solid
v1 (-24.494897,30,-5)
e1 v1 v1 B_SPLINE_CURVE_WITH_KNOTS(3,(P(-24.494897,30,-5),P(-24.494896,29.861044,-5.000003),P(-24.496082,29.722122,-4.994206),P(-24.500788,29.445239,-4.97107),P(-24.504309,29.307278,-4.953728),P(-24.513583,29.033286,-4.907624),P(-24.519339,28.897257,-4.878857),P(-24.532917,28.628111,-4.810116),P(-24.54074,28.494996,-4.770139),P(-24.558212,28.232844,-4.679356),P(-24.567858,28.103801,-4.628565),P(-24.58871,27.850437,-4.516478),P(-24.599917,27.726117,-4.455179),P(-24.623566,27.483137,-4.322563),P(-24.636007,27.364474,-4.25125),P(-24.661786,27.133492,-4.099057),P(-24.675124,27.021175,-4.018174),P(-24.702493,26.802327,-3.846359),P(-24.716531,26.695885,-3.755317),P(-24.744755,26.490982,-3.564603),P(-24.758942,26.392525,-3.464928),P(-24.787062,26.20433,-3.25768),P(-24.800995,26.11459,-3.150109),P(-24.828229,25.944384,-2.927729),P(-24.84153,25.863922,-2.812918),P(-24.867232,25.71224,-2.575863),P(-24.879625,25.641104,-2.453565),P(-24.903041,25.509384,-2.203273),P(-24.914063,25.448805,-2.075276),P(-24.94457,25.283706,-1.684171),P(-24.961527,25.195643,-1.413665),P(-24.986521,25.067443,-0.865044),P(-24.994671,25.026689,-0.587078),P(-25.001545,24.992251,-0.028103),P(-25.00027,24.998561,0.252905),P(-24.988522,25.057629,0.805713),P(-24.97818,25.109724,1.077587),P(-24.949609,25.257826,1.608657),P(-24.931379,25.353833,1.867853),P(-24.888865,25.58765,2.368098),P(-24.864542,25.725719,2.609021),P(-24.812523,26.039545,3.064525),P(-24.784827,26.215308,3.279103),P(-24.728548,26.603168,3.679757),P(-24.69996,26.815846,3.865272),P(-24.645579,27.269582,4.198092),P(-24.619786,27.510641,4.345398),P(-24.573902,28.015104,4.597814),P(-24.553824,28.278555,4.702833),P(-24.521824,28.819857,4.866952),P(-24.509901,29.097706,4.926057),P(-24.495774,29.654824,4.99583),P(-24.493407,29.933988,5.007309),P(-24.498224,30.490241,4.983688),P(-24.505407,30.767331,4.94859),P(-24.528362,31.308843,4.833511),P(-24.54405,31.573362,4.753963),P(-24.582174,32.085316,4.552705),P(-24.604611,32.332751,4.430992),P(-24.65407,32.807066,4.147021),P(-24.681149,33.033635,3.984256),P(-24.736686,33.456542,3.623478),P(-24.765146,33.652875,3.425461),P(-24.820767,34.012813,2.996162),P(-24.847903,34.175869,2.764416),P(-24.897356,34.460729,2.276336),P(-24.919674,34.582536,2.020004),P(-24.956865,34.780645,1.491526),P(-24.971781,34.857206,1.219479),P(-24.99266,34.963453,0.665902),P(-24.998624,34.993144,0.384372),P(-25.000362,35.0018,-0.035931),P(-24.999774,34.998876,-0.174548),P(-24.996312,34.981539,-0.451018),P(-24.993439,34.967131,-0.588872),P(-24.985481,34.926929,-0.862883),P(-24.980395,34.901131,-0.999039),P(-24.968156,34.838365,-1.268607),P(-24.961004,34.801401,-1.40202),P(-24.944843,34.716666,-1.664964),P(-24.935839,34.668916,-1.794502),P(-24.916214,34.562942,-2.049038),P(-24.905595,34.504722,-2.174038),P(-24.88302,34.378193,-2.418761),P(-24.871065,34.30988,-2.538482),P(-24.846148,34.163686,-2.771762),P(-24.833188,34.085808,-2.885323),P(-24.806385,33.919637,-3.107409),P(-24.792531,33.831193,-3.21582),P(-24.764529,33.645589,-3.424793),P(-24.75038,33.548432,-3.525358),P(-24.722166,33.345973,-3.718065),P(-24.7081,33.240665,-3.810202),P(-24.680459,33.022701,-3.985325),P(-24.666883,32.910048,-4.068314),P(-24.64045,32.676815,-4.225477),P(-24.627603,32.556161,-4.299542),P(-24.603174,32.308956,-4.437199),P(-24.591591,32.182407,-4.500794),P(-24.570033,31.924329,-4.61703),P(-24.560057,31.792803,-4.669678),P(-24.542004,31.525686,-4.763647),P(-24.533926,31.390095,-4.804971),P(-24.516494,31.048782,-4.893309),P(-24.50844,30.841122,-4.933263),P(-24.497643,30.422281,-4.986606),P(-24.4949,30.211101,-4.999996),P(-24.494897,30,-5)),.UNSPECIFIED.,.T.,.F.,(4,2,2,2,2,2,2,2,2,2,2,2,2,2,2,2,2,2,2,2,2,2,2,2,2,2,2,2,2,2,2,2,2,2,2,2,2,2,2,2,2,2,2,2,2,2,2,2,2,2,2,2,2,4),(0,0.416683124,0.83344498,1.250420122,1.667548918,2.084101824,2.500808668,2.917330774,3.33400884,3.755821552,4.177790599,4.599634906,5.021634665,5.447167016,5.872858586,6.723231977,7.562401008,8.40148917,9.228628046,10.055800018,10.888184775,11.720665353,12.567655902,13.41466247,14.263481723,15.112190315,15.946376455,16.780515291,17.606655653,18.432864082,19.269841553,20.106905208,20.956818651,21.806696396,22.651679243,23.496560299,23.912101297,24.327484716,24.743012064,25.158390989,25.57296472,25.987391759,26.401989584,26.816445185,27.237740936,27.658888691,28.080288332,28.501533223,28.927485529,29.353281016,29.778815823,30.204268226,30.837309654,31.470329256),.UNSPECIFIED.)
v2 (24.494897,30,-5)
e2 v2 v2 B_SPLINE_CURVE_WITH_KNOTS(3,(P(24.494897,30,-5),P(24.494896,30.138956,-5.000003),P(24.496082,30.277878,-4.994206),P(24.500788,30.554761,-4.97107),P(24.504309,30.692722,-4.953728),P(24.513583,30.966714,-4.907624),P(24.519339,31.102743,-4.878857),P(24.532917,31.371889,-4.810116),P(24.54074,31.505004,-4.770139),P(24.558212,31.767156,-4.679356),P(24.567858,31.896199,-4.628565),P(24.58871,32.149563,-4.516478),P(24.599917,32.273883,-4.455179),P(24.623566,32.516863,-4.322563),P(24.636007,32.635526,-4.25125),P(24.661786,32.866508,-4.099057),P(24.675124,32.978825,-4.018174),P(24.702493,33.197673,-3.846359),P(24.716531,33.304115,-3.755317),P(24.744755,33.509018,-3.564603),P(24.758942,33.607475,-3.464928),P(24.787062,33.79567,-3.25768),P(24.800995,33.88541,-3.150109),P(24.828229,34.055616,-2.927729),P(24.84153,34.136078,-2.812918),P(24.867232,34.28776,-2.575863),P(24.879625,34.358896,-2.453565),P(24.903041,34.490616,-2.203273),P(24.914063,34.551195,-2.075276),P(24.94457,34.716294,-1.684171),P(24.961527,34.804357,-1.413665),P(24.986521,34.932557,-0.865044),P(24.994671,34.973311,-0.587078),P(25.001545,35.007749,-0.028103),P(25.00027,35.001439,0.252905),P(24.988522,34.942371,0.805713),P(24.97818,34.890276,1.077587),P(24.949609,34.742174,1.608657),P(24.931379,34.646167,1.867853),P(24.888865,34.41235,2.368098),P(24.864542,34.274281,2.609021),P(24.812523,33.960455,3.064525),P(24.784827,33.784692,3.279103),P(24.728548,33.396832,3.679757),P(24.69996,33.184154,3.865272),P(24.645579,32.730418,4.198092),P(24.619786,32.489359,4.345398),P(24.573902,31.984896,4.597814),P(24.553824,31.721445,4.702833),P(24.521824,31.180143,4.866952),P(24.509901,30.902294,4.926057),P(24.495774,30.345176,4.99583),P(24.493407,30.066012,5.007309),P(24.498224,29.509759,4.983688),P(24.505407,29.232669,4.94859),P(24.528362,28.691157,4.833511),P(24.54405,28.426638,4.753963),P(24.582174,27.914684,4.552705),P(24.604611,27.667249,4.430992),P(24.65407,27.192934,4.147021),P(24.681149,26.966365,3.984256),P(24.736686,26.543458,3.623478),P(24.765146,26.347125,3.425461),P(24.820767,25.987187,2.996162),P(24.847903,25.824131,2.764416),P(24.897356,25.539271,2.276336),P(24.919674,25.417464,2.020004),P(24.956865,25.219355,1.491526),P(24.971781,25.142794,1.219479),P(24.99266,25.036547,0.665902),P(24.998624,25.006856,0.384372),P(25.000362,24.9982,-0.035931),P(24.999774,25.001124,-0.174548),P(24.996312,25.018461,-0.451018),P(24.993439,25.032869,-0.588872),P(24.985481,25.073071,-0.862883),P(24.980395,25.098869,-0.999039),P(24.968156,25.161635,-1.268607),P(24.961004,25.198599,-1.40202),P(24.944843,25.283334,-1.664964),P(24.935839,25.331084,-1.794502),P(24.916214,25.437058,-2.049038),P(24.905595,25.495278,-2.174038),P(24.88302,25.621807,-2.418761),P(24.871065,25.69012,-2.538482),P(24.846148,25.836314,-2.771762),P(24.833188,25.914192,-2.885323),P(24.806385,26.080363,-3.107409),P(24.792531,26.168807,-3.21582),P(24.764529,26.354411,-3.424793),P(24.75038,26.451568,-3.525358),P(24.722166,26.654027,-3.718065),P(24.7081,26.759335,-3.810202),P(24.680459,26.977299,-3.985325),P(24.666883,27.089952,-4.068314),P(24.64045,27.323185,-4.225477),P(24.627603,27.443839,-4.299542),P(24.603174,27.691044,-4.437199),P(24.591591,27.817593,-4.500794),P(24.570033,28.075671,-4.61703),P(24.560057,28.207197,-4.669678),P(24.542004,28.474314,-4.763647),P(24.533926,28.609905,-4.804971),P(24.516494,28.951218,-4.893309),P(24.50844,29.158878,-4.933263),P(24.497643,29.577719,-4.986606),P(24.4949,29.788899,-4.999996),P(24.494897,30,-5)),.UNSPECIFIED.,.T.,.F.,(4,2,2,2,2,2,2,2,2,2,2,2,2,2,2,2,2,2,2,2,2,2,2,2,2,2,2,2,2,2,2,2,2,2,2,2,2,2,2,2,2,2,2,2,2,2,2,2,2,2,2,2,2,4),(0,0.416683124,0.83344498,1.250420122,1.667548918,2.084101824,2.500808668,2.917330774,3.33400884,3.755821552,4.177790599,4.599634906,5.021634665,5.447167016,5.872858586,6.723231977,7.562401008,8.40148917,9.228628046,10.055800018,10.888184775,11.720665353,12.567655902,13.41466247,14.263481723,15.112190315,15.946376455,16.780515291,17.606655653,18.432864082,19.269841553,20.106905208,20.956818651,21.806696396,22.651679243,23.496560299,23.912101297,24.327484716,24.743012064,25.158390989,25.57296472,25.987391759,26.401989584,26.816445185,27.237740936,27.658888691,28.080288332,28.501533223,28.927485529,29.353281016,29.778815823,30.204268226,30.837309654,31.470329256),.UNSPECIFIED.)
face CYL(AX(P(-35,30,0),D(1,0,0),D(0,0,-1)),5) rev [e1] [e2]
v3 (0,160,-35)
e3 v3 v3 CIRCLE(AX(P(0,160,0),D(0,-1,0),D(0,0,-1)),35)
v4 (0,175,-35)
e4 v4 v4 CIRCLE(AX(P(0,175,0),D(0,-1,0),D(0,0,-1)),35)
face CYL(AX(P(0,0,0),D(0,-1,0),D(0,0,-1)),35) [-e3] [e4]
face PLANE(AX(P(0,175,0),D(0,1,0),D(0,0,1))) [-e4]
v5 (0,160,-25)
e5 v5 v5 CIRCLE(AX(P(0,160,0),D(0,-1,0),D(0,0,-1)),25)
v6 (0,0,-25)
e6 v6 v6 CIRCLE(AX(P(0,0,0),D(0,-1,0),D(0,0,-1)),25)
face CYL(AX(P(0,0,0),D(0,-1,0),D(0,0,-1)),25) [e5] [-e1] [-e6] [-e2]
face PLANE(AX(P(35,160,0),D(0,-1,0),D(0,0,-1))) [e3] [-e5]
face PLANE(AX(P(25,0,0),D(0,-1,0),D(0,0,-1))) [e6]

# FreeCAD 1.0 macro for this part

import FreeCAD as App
import Part
import Sketcher
from FreeCAD import Vector


def add_polygon(sketch, points):
    """Adds a closed chain of lines whose ends are joined by coincident constraints."""
    first, n = sketch.GeometryCount, len(points)
    for a, b in zip(points, points[1:] + points[:1]):
        sketch.addGeometry(Part.LineSegment(App.Vector(*a, 0), App.Vector(*b, 0)), False)
    for i in range(n):
        sketch.addConstraint(Sketcher.Constraint("Coincident", first + i, 2, first + (i + 1) % n, 1))

doc = App.newDocument("Part")
params = doc.addObject("Spreadsheet::Sheet", "Params")
for row, (alias, value) in enumerate([
    ("sketch1_width", "25 mm"),
    ("sketch1_width2", "10 mm"),
    ("sketch1_height", "175 mm"),
    ("sketch1_height2", "160 mm"),
    ("revolution_angle", "360 deg"),
    ("sketch2_diameter", "10 mm"),
], start=1):
    params.set(f"A{row}", alias)
    params.set(f"B{row}", "=" + value)
    params.setAlias(f"B{row}", alias)

body = doc.addObject("PartDesign::Body", "Body")

# Sketch on XY plane
sketch1 = body.newObject("Sketcher::SketchObject", "Sketch")
sketch1.AttachmentSupport = (doc.getObject("XY_Plane"), [""])
sketch1.MapMode = "FlatFace"
add_polygon(sketch1, [(0, 175), (0, 0), (25, 0), (25, 160), (35, 160), (35, 175)])  # lines 0-5
sketch1.addConstraint(Sketcher.Constraint("Vertical", 0))
sketch1.addConstraint(Sketcher.Constraint("Horizontal", 1))
sketch1.addConstraint(Sketcher.Constraint("Vertical", 2))
sketch1.addConstraint(Sketcher.Constraint("Horizontal", 3))
sketch1.addConstraint(Sketcher.Constraint("Vertical", 4))
sketch1.addConstraint(Sketcher.Constraint("Horizontal", 5))
sketch1.addConstraint(Sketcher.Constraint("Coincident", 0, 2, -1, 1))
sketch1.addConstraint(Sketcher.Constraint("DistanceX", 1, 1, 1, 2, 25.0))
sketch1.addConstraint(Sketcher.Constraint("DistanceX", 3, 1, 3, 2, 10.0))
sketch1.addConstraint(Sketcher.Constraint("DistanceY", 0, 2, 0, 1, 175.0))
sketch1.addConstraint(Sketcher.Constraint("DistanceY", 2, 1, 2, 2, 160.0))
sketch1.setExpression("Constraints[13]", "Params.sketch1_width")
sketch1.setExpression("Constraints[14]", "Params.sketch1_width2")
sketch1.setExpression("Constraints[15]", "Params.sketch1_height")
sketch1.setExpression("Constraints[16]", "Params.sketch1_height2")
revolution = body.newObject("PartDesign::Revolution", "Revolution")
revolution.Profile = sketch1
revolution.ReferenceAxis = (sketch1, ["V_Axis"])
revolution.setExpression("Angle", "Params.revolution_angle")

# Sketch on YZ plane
sketch2 = body.newObject("Sketcher::SketchObject", "Sketch001")
sketch2.AttachmentSupport = (doc.getObject("YZ_Plane"), [""])
sketch2.MapMode = "FlatFace"
sketch2.AttachmentOffset = App.Placement(Vector(0, 0, 25), App.Rotation())
sketch2.addGeometry(Part.Circle(Vector(30, 0, 0), Vector(0, 0, 1), 5), False)
sketch2.addConstraint(Sketcher.Constraint("PointOnObject", 0, 3, -1))
sketch2.addConstraint(Sketcher.Constraint("Diameter", 0, 10.0))
sketch2.addConstraint(Sketcher.Constraint("DistanceX", -1, 1, 0, 3, 30.0))
sketch2.setExpression("Constraints[1]", "Params.sketch2_diameter")
pocket1 = body.newObject("PartDesign::Pocket", "Pocket")
pocket1.Profile = sketch2
pocket1.Type = "ThroughAll"

doc.recompute()
